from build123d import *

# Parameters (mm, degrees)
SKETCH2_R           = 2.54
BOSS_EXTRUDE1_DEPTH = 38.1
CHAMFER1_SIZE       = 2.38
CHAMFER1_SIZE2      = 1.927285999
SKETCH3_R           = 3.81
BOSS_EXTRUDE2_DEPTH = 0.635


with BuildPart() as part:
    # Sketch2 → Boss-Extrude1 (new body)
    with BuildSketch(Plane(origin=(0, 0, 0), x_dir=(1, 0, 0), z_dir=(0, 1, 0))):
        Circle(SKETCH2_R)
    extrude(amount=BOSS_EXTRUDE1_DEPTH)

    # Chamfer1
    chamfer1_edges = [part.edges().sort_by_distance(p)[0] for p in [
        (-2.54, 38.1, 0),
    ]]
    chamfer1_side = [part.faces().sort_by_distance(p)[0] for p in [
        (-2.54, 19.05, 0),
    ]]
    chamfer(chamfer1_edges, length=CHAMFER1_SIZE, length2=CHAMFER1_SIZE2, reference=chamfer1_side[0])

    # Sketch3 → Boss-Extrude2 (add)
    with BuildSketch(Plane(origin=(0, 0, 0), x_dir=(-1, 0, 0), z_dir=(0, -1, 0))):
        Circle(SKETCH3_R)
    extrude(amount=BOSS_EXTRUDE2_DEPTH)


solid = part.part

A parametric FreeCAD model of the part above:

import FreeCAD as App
import Part
import Sketcher

V = App.Vector
Q = App.Units.Quantity


def edges_at(feature, points):
    """Names of the edges that pass closest to the given points."""
    edges = feature.Shape.Edges
    near = lambda p: min(range(len(edges)), key=lambda i: edges[i].distToShape(Part.Vertex(*p))[0])
    return sorted({f"Edge{near(p) + 1}" for p in points})

doc = App.newDocument("Part")
params = doc.addObject("Spreadsheet::Sheet", "Params")
for row, (alias, value) in enumerate([
    ("sketch1_diameter", "0.2 in"),
    ("pad1_length", "1.5 in"),
    ("chamfer_size", "2.38 mm"),
    ("chamfer_size2", "1.927286 mm"),
    ("sketch2_diameter", "0.3 in"),
    ("pad2_length", "0.025 in"),
], start=1):
    params.set(f"A{row}", alias)
    params.set(f"B{row}", "=" + value)
    params.setAlias(f"B{row}", alias)

body = doc.addObject("PartDesign::Body", "Body")

# Sketch on XZ plane
sketch1 = body.newObject("Sketcher::SketchObject", "Sketch")
sketch1.AttachmentSupport = (doc.getObject("XZ_Plane"), [""])
sketch1.MapMode = "FlatFace"
sketch1.addGeometry(Part.Circle(V(0, 0, 0), V(0, 0, 1), 2.5), False)
sketch1.addConstraint(Sketcher.Constraint("Coincident", 0, 3, -1, 1))
sketch1.addConstraint(Sketcher.Constraint("Diameter", 0, Q("0.2 in")))
sketch1.setExpression("Constraints[1]", "Params.sketch1_diameter")
pad1 = body.newObject("PartDesign::Pad", "Pad")
pad1.Profile = sketch1
pad1.setExpression("Length", "Params.pad1_length")
pad1.Reversed = True
doc.recompute()

chamfer = body.newObject("PartDesign::Chamfer", "Chamfer")
chamfer.Base = (pad1, edges_at(pad1, [(-2.54, 38.1, 0)]))
chamfer.ChamferType = "Two distances"
chamfer.setExpression("Size", "Params.chamfer_size")
chamfer.setExpression("Size2", "Params.chamfer_size2")

# Sketch on XZ plane
sketch2 = body.newObject("Sketcher::SketchObject", "Sketch001")
sketch2.AttachmentSupport = (doc.getObject("XZ_Plane"), [""])
sketch2.MapMode = "FlatFace"
sketch2.addGeometry(Part.Circle(V(0, 0, 0), V(0, 0, 1), 3.8), False)
sketch2.addConstraint(Sketcher.Constraint("Coincident", 0, 3, -1, 1))
sketch2.addConstraint(Sketcher.Constraint("Diameter", 0, Q("0.3 in")))
sketch2.setExpression("Constraints[1]", "Params.sketch2_diameter")
pad2 = body.newObject("PartDesign::Pad", "Pad001")
pad2.Profile = sketch2
pad2.setExpression("Length", "Params.pad2_length")

doc.recompute()
